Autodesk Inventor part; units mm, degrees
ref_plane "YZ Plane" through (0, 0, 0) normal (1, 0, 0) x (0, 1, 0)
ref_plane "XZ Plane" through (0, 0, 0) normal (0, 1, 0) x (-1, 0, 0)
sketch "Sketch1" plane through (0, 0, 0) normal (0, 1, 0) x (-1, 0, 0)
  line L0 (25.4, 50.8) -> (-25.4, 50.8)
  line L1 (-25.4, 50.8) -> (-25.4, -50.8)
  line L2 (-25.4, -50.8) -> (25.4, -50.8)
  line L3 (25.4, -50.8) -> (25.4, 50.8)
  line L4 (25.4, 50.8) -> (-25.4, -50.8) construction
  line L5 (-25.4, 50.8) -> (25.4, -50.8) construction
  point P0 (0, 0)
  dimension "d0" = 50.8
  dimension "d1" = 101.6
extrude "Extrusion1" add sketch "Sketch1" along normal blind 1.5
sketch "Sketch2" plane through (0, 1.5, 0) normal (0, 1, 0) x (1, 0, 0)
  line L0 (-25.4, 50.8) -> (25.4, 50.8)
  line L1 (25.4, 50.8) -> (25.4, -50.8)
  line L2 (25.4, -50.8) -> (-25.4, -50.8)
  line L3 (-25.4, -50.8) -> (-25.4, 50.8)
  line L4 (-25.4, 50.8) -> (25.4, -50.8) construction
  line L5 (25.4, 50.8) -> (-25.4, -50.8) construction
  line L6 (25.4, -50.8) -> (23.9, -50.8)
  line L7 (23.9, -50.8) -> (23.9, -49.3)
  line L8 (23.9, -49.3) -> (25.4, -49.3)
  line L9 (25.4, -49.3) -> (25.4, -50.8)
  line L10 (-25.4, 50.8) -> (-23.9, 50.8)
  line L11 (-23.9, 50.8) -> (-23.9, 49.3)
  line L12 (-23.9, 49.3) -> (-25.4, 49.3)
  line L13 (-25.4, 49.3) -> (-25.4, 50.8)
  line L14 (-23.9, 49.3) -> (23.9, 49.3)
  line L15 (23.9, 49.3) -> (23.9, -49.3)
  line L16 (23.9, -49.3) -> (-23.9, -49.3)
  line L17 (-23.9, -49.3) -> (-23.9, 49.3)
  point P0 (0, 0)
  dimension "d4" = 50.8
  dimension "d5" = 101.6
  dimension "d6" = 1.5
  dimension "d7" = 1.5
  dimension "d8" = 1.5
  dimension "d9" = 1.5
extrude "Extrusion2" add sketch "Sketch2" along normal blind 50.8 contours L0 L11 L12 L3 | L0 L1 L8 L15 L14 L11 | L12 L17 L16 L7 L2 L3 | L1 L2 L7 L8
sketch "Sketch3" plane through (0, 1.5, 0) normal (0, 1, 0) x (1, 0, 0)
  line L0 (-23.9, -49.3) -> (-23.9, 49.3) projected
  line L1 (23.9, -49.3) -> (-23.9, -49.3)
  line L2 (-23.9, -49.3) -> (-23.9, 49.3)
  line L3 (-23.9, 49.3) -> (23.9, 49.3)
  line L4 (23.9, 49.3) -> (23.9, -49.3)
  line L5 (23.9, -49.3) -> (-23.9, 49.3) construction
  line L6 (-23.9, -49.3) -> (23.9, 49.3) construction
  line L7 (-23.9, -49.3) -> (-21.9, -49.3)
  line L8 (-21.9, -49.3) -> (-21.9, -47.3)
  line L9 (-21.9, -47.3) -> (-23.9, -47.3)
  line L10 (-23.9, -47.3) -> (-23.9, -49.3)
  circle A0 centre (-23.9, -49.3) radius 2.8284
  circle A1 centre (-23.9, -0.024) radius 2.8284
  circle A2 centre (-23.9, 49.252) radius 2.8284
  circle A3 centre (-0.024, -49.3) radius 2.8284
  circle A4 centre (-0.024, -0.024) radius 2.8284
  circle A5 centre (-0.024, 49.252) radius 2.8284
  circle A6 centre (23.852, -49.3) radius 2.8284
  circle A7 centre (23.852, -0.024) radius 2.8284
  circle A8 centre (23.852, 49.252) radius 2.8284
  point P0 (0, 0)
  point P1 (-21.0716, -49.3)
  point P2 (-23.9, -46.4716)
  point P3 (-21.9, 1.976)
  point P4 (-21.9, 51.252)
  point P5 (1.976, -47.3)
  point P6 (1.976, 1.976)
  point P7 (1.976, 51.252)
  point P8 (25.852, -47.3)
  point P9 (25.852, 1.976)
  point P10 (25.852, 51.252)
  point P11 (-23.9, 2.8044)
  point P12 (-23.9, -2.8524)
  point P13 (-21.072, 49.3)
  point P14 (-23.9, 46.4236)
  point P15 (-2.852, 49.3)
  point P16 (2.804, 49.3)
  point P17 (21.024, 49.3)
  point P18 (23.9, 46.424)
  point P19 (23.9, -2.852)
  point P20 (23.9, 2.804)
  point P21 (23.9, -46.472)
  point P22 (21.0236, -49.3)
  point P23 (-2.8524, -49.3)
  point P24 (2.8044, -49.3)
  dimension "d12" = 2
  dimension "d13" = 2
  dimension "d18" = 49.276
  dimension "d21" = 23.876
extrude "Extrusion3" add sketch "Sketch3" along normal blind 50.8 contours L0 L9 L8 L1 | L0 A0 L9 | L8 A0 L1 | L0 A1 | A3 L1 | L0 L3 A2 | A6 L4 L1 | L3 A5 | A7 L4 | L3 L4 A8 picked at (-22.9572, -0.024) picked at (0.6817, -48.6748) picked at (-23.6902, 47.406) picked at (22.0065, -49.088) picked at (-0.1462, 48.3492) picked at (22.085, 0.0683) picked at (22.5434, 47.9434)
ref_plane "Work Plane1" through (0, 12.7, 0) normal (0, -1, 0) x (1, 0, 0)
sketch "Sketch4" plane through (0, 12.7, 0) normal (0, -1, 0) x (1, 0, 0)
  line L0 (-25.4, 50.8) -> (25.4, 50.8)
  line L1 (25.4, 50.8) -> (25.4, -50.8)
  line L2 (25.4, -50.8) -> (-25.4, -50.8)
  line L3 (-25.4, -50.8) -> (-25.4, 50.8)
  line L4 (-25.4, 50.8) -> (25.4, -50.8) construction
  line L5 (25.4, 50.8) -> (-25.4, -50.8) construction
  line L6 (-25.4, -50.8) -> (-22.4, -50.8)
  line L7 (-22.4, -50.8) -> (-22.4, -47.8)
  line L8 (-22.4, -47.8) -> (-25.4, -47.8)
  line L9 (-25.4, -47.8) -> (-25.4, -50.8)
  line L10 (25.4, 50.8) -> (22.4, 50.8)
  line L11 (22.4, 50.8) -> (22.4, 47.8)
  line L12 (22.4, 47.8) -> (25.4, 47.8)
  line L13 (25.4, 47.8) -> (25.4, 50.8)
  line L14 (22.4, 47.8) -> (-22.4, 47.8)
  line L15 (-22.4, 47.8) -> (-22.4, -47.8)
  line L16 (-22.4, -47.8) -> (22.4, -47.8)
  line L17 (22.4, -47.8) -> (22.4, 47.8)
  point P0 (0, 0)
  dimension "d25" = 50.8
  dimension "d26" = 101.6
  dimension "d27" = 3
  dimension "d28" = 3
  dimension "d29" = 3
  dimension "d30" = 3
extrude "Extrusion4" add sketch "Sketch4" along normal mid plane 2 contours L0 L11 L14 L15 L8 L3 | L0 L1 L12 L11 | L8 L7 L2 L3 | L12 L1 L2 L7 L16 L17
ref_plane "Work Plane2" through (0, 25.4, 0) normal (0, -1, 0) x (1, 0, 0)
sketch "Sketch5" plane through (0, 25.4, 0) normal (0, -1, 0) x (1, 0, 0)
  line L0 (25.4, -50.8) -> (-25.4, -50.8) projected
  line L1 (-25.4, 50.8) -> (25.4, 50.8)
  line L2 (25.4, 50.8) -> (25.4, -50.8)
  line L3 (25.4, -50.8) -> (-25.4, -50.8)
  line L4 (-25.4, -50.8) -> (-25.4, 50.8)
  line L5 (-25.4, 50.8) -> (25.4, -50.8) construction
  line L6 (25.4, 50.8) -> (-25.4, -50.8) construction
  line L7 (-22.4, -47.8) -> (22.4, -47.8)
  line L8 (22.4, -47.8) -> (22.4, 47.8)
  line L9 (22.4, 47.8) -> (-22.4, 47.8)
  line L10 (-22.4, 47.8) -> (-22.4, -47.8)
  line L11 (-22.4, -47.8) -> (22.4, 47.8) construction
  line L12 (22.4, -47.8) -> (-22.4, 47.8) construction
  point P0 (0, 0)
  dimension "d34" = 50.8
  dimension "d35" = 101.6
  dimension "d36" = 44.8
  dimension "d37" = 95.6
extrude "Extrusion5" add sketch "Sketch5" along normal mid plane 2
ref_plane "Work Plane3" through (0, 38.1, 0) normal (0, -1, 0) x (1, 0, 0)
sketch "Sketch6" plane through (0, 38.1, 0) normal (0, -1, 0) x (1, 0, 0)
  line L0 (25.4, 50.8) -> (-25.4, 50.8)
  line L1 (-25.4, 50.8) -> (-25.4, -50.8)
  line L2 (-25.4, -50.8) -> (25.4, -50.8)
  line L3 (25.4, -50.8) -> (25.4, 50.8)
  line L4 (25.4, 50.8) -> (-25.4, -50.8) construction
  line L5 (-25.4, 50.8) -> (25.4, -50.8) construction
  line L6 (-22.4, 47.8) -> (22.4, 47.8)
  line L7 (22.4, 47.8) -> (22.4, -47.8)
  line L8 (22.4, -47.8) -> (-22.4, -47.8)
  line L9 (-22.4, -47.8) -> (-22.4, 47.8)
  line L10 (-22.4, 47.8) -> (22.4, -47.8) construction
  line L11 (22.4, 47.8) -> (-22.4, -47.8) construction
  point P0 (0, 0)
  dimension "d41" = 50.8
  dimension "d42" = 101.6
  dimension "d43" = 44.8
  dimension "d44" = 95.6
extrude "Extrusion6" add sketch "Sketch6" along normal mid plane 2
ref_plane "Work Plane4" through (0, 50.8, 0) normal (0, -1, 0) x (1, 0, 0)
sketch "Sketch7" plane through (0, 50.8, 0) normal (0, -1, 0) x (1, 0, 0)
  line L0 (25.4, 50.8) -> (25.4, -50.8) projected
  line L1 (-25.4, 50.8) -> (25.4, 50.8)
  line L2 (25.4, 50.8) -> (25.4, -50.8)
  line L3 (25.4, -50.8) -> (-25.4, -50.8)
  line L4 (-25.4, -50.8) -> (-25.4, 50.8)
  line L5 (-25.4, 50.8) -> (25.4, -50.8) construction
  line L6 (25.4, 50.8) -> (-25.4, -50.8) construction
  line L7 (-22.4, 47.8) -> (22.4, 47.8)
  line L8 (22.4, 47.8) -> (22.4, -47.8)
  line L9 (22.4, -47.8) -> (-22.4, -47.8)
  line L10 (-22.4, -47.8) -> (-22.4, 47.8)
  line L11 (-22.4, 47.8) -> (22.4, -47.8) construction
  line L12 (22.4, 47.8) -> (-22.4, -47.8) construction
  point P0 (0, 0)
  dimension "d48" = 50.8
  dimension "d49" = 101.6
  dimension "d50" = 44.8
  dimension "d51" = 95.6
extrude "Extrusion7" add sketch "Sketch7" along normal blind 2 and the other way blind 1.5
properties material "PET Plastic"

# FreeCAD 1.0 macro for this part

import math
import FreeCAD as App
import Part
import Sketcher

V = App.Vector

doc = App.newDocument("Part")
params = doc.addObject("Spreadsheet::Sheet", "Params")
for row, (alias, value) in enumerate([
    ("sketch1_width", "50.8 mm"),
    ("sketch1_height", "101.6 mm"),
    ("pad1_length", "1.5 mm"),
    ("sketch2_width", "50.8 mm"),
    ("sketch2_height", "101.6 mm"),
    ("pad2_length", "50.8 mm"),
    ("pad3_length", "50.8 mm"),
    ("sketch4_width", "50.8 mm"),
    ("sketch4_height", "101.6 mm"),
    ("pad4_length", "2 mm"),
    ("sketch5_width", "50.8 mm"),
    ("sketch5_width2", "44.8 mm"),
    ("sketch5_height", "101.6 mm"),
    ("sketch5_height2", "95.6 mm"),
    ("pad5_length", "2 mm"),
    ("sketch6_width", "50.8 mm"),
    ("sketch6_width2", "44.8 mm"),
    ("sketch6_height", "101.6 mm"),
    ("sketch6_height2", "95.6 mm"),
    ("pad6_length", "2 mm"),
    ("sketch7_width", "50.8 mm"),
    ("sketch7_width2", "44.8 mm"),
    ("sketch7_height", "101.6 mm"),
    ("sketch7_height2", "95.6 mm"),
    ("pad7_length", "2 mm"),
    ("pad7_length2", "1.5 mm"),
], start=1):
    params.set(f"A{row}", alias)
    params.set(f"B{row}", "=" + value)
    params.setAlias(f"B{row}", alias)

body = doc.addObject("PartDesign::Body", "Body")

sketch1 = doc.addObject("Sketcher::SketchObject", "Sketch")
body.addObject(sketch1)
sketch1.AttachmentSupport = (doc.XZ_Plane, [""])
sketch1.MapMode = "FlatFace"
sketch1.addGeometry([
    Part.LineSegment(V(-25, -51, 0), V(-25, 51, 0)),
    Part.LineSegment(V(-25, 51, 0), V(25, 51, 0)),
    Part.LineSegment(V(25, 51, 0), V(25, -51, 0)),
    Part.LineSegment(V(25, -51, 0), V(-25, -51, 0)),
], False)
sketch1.addConstraint([
    Sketcher.Constraint("Coincident", 0, 2, 1, 1),
    Sketcher.Constraint("Coincident", 1, 2, 2, 1),
    Sketcher.Constraint("Coincident", 2, 2, 3, 1),
    Sketcher.Constraint("Coincident", 3, 2, 0, 1),
    Sketcher.Constraint("Vertical", 0),
    Sketcher.Constraint("Horizontal", 1),
    Sketcher.Constraint("Vertical", 2),
    Sketcher.Constraint("Horizontal", 3),
    Sketcher.Constraint("Symmetric", 0, 2, 2, 2, -1, 1),
    Sketcher.Constraint("DistanceX", 1, 1, 1, 2, 50.8),
    Sketcher.Constraint("DistanceY", 0, 1, 0, 2, 101.6),
])
sketch1.setExpression("Constraints[9]", "Params.sketch1_width")
sketch1.setExpression("Constraints[10]", "Params.sketch1_height")
pad1 = doc.addObject("PartDesign::Pad", "Pad")
body.addObject(pad1)
pad1.Profile = sketch1
pad1.setExpression("Length", "Params.pad1_length")
pad1.Reversed = True

sketch2 = doc.addObject("Sketcher::SketchObject", "Sketch001")
body.addObject(sketch2)
sketch2.AttachmentSupport = (doc.XZ_Plane, [""])
sketch2.MapMode = "FlatFace"
sketch2.AttachmentOffset = App.Placement(V(0, 0, -1.5), App.Rotation())
sketch2.addGeometry([
    Part.LineSegment(V(-25, -51, 0), V(-25, 51, 0)),
    Part.LineSegment(V(-25, 51, 0), V(25, 51, 0)),
    Part.LineSegment(V(25, 51, 0), V(25, -51, 0)),
    Part.LineSegment(V(25, -51, 0), V(-25, -51, 0)),
    Part.LineSegment(V(24, -49, 0), V(24, 49, 0)),
    Part.LineSegment(V(24, 49, 0), V(-24, 49, 0)),
    Part.LineSegment(V(-24, 49, 0), V(-24, -49, 0)),
    Part.LineSegment(V(-24, -49, 0), V(24, -49, 0)),
], False)
sketch2.addConstraint([
    Sketcher.Constraint("Coincident", 0, 2, 1, 1),
    Sketcher.Constraint("Coincident", 1, 2, 2, 1),
    Sketcher.Constraint("Coincident", 2, 2, 3, 1),
    Sketcher.Constraint("Coincident", 3, 2, 0, 1),
    Sketcher.Constraint("Coincident", 4, 2, 5, 1),
    Sketcher.Constraint("Coincident", 5, 2, 6, 1),
    Sketcher.Constraint("Coincident", 6, 2, 7, 1),
    Sketcher.Constraint("Coincident", 7, 2, 4, 1),
    Sketcher.Constraint("Vertical", 0),
    Sketcher.Constraint("Horizontal", 1),
    Sketcher.Constraint("Vertical", 2),
    Sketcher.Constraint("Horizontal", 3),
    Sketcher.Constraint("Vertical", 4),
    Sketcher.Constraint("Horizontal", 5),
    Sketcher.Constraint("Vertical", 6),
    Sketcher.Constraint("Horizontal", 7),
    Sketcher.Constraint("Symmetric", 0, 2, 2, 2, -1, 1),
    Sketcher.Constraint("Symmetric", 4, 2, 6, 2, -1, 1),
    Sketcher.Constraint("DistanceX", 1, 1, 1, 2, 50.8),
    Sketcher.Constraint("DistanceY", 0, 1, 0, 2, 101.6),
    Sketcher.Constraint("DistanceX", 4, 2, 1, 2, 1.5),
    Sketcher.Constraint("DistanceY", 4, 2, 1, 2, 1.5),
])
sketch2.setExpression("Constraints[18]", "Params.sketch2_width")
sketch2.setExpression("Constraints[19]", "Params.sketch2_height")
pad2 = doc.addObject("PartDesign::Pad", "Pad001")
body.addObject(pad2)
pad2.Profile = sketch2
pad2.setExpression("Length", "Params.pad2_length")
pad2.Reversed = True

sketch3 = doc.addObject("Sketcher::SketchObject", "Sketch002")
body.addObject(sketch3)
sketch3.AttachmentSupport = (doc.XZ_Plane, [""])
sketch3.MapMode = "FlatFace"
sketch3.AttachmentOffset = App.Placement(V(0, 0, -1.5), App.Rotation())
sketch3.addGeometry([
    Part.LineSegment(V(-23.9, 49.3, 0), V(-21.1, 49.3, 0)),
    Part.ArcOfCircle(Part.Circle(V(-23.9, 49.3, 0), V(0, 0, 1), 2.8), math.radians(-90), math.radians(0)),
    Part.LineSegment(V(-23.9, 46.5, 0), V(-23.9, 49.3, 0)),
    Part.LineSegment(V(-23.9, -2.8, 0), V(-23.9, 2.9, 0)),
    Part.ArcOfCircle(Part.Circle(V(-23.9, 0, 0), V(0, 0, 1), 2.8), math.radians(-90), math.radians(90)),
    Part.ArcOfCircle(Part.Circle(V(0, 49.3, 0), V(0, 0, 1), 2.8), math.radians(180), math.radians(360)),
    Part.LineSegment(V(-2.9, 49.3, 0), V(2.8, 49.3, 0)),
    Part.LineSegment(V(-23.9, -49.3, 0), V(-23.9, -46.4, 0)),
    Part.ArcOfCircle(Part.Circle(V(-23.9, -49.3, 0), V(0, 0, 1), 2.8), math.radians(-1), math.radians(90)),
    Part.LineSegment(V(-21.1, -49.3, 0), V(-23.9, -49.3, 0)),
    Part.ArcOfCircle(Part.Circle(V(23.9, 49.3, 0), V(0, 0, 1), 2.8), math.radians(180), math.radians(271)),
    Part.LineSegment(V(21, 49.3, 0), V(23.9, 49.3, 0)),
    Part.LineSegment(V(23.9, 49.3, 0), V(23.9, 46.5, 0)),
    Part.LineSegment(V(2.8, -49.3, 0), V(-2.9, -49.3, 0)),
    Part.ArcOfCircle(Part.Circle(V(0, -49.3, 0), V(0, 0, 1), 2.8), math.radians(-1), math.radians(181)),
    Part.ArcOfCircle(Part.Circle(V(23.9, 0, 0), V(0, 0, 1), 2.8), math.radians(89), math.radians(271)),
    Part.LineSegment(V(23.9, 2.9, 0), V(23.9, -2.8, 0)),
    Part.LineSegment(V(23.9, -49.3, 0), V(21, -49.3, 0)),
    Part.ArcOfCircle(Part.Circle(V(23.9, -49.3, 0), V(0, 0, 1), 2.8), math.radians(89), math.radians(181)),
    Part.LineSegment(V(23.9, -46.4, 0), V(23.9, -49.3, 0)),
], False)
sketch3.addConstraint([
    Sketcher.Constraint("Coincident", 0, 2, 1, 2),
    Sketcher.Constraint("Coincident", 1, 1, 2, 1),
    Sketcher.Constraint("Coincident", 2, 2, 0, 1),
    Sketcher.Constraint("Coincident", 3, 1, 4, 1),
    Sketcher.Constraint("Coincident", 4, 2, 3, 2),
    Sketcher.Constraint("Coincident", 5, 1, 6, 1),
    Sketcher.Constraint("Coincident", 6, 2, 5, 2),
    Sketcher.Constraint("Coincident", 7, 2, 8, 2),
    Sketcher.Constraint("Coincident", 8, 1, 9, 1),
    Sketcher.Constraint("Coincident", 9, 2, 7, 1),
    Sketcher.Constraint("Coincident", 10, 1, 11, 1),
    Sketcher.Constraint("Coincident", 11, 2, 12, 1),
    Sketcher.Constraint("Coincident", 12, 2, 10, 2),
    Sketcher.Constraint("Coincident", 13, 1, 14, 1),
    Sketcher.Constraint("Coincident", 14, 2, 13, 2),
    Sketcher.Constraint("Coincident", 15, 1, 16, 1),
    Sketcher.Constraint("Coincident", 16, 2, 15, 2),
    Sketcher.Constraint("Coincident", 17, 2, 18, 2),
    Sketcher.Constraint("Coincident", 18, 1, 19, 1),
    Sketcher.Constraint("Coincident", 19, 2, 17, 1),
    Sketcher.Constraint("Horizontal", 0),
    Sketcher.Constraint("Vertical", 2),
    Sketcher.Constraint("Vertical", 3),
    Sketcher.Constraint("Horizontal", 6),
    Sketcher.Constraint("Vertical", 7),
    Sketcher.Constraint("Horizontal", 9),
    Sketcher.Constraint("Horizontal", 11),
    Sketcher.Constraint("Vertical", 12),
    Sketcher.Constraint("Horizontal", 13),
    Sketcher.Constraint("Vertical", 16),
    Sketcher.Constraint("Horizontal", 17),
    Sketcher.Constraint("Vertical", 19),
    Sketcher.Constraint("Coincident", 2, 2, 1, 3),
    Sketcher.Constraint("Equal", 1, 4),
    Sketcher.Constraint("Equal", 4, 5),
    Sketcher.Constraint("Equal", 5, 8),
    Sketcher.Constraint("Equal", 8, 10),
    Sketcher.Constraint("Equal", 10, 14),
    Sketcher.Constraint("Equal", 14, 15),
    Sketcher.Constraint("Equal", 15, 18),
    Sketcher.Constraint("Symmetric", 9, 2, 11, 2, -1, 1),
    Sketcher.Constraint("Symmetric", 2, 2, 19, 2, -1, 1),
    Sketcher.Constraint("Symmetric", 2, 2, 11, 2, -2),
    Sketcher.Constraint("Horizontal", 1, 3, 5, 3),
    Sketcher.Constraint("Horizontal", 5, 3, 10, 3),
    Sketcher.Constraint("Horizontal", 8, 3, 14, 3),
    Sketcher.Constraint("Horizontal", 4, 3, 15, 3),
    Sketcher.Constraint("Horizontal", 14, 3, 18, 3),
    Sketcher.Constraint("Horizontal", 2, 2, 5, 1),
    Sketcher.Constraint("Horizontal", 9, 2, 13, 1),
    Sketcher.Constraint("Vertical", 1, 3, 4, 3),
    Sketcher.Constraint("Vertical", 4, 3, 8, 3),
    Sketcher.Constraint("Vertical", 5, 3, 14, 3),
    Sketcher.Constraint("Vertical", 10, 3, 15, 3),
    Sketcher.Constraint("Vertical", 15, 3, 18, 3),
    Sketcher.Constraint("Vertical", 2, 2, 3, 1),
    Sketcher.Constraint("Vertical", 12, 2, 15, 1),
    Sketcher.Constraint("Equal", 11, 7),
    Sketcher.Constraint("DistanceY", 4, 3, 1, 3, 49.276),
    Sketcher.Constraint("DistanceX", 1, 3, 5, 3, 23.876),
    Sketcher.Constraint("DistanceY", 8, 3, 4, 3, 49.276),
    Sketcher.Constraint("DistanceX", 5, 3, 10, 3, 23.876),
    Sketcher.Constraint("DistanceX", 1, 3, -1, 1, 23.9),
    Sketcher.Constraint("Radius", 1, 2.8284),
])
pad3 = doc.addObject("PartDesign::Pad", "Pad002")
body.addObject(pad3)
pad3.Profile = sketch3
pad3.setExpression("Length", "Params.pad3_length")
pad3.Reversed = True

sketch4 = doc.addObject("Sketcher::SketchObject", "Sketch003")
body.addObject(sketch4)
sketch4.AttachmentSupport = (doc.XZ_Plane, [""])
sketch4.MapMode = "FlatFace"
sketch4.AttachmentOffset = App.Placement(V(0, 0, -12.7), App.Rotation())
sketch4.addGeometry([
    Part.LineSegment(V(-25, 51, 0), V(-25, -51, 0)),
    Part.LineSegment(V(-25, -51, 0), V(25, -51, 0)),
    Part.LineSegment(V(25, -51, 0), V(25, 51, 0)),
    Part.LineSegment(V(25, 51, 0), V(-25, 51, 0)),
    Part.LineSegment(V(-22, 48, 0), V(22, 48, 0)),
    Part.LineSegment(V(22, 48, 0), V(22, -48, 0)),
    Part.LineSegment(V(22, -48, 0), V(-22, -48, 0)),
    Part.LineSegment(V(-22, -48, 0), V(-22, 48, 0)),
], False)
sketch4.addConstraint([
    Sketcher.Constraint("Coincident", 0, 2, 1, 1),
    Sketcher.Constraint("Coincident", 1, 2, 2, 1),
    Sketcher.Constraint("Coincident", 2, 2, 3, 1),
    Sketcher.Constraint("Coincident", 3, 2, 0, 1),
    Sketcher.Constraint("Coincident", 4, 2, 5, 1),
    Sketcher.Constraint("Coincident", 5, 2, 6, 1),
    Sketcher.Constraint("Coincident", 6, 2, 7, 1),
    Sketcher.Constraint("Coincident", 7, 2, 4, 1),
    Sketcher.Constraint("Vertical", 0),
    Sketcher.Constraint("Horizontal", 1),
    Sketcher.Constraint("Vertical", 2),
    Sketcher.Constraint("Horizontal", 3),
    Sketcher.Constraint("Horizontal", 4),
    Sketcher.Constraint("Vertical", 5),
    Sketcher.Constraint("Horizontal", 6),
    Sketcher.Constraint("Vertical", 7),
    Sketcher.Constraint("Symmetric", 0, 2, 2, 2, -1, 1),
    Sketcher.Constraint("Symmetric", 4, 2, 6, 2, -1, 1),
    Sketcher.Constraint("DistanceX", 1, 1, 1, 2, 50.8),
    Sketcher.Constraint("DistanceY", 0, 2, 0, 1, 101.6),
    Sketcher.Constraint("DistanceX", 4, 2, 2, 2, 3.0),
    Sketcher.Constraint("DistanceY", 4, 2, 2, 2, 3.0),
])
sketch4.setExpression("Constraints[18]", "Params.sketch4_width")
sketch4.setExpression("Constraints[19]", "Params.sketch4_height")
pad4 = doc.addObject("PartDesign::Pad", "Pad003")
body.addObject(pad4)
pad4.Profile = sketch4
pad4.setExpression("Length", "Params.pad4_length")
pad4.Midplane = True

sketch5 = doc.addObject("Sketcher::SketchObject", "Sketch004")
body.addObject(sketch5)
sketch5.AttachmentSupport = (doc.XZ_Plane, [""])
sketch5.MapMode = "FlatFace"
sketch5.AttachmentOffset = App.Placement(V(0, 0, -25.4), App.Rotation())
sketch5.addGeometry([
    Part.LineSegment(V(-25, -51, 0), V(25, -51, 0)),
    Part.LineSegment(V(25, -51, 0), V(25, 51, 0)),
    Part.LineSegment(V(25, 51, 0), V(-25, 51, 0)),
    Part.LineSegment(V(-25, 51, 0), V(-25, -51, 0)),
    Part.LineSegment(V(22, -48, 0), V(-22, -48, 0)),
    Part.LineSegment(V(-22, -48, 0), V(-22, 48, 0)),
    Part.LineSegment(V(-22, 48, 0), V(22, 48, 0)),
    Part.LineSegment(V(22, 48, 0), V(22, -48, 0)),
], False)
sketch5.addConstraint([
    Sketcher.Constraint("Coincident", 0, 2, 1, 1),
    Sketcher.Constraint("Coincident", 1, 2, 2, 1),
    Sketcher.Constraint("Coincident", 2, 2, 3, 1),
    Sketcher.Constraint("Coincident", 3, 2, 0, 1),
    Sketcher.Constraint("Coincident", 4, 2, 5, 1),
    Sketcher.Constraint("Coincident", 5, 2, 6, 1),
    Sketcher.Constraint("Coincident", 6, 2, 7, 1),
    Sketcher.Constraint("Coincident", 7, 2, 4, 1),
    Sketcher.Constraint("Horizontal", 0),
    Sketcher.Constraint("Vertical", 1),
    Sketcher.Constraint("Horizontal", 2),
    Sketcher.Constraint("Vertical", 3),
    Sketcher.Constraint("Horizontal", 4),
    Sketcher.Constraint("Vertical", 5),
    Sketcher.Constraint("Horizontal", 6),
    Sketcher.Constraint("Vertical", 7),
    Sketcher.Constraint("Symmetric", 0, 2, 2, 2, -1, 1),
    Sketcher.Constraint("Symmetric", 4, 2, 6, 2, -1, 1),
    Sketcher.Constraint("DistanceX", 0, 1, 0, 2, 50.8),
    Sketcher.Constraint("DistanceX", 4, 2, 4, 1, 44.8),
    Sketcher.Constraint("DistanceY", 1, 1, 1, 2, 101.6),
    Sketcher.Constraint("DistanceY", 5, 1, 5, 2, 95.6),
])
sketch5.setExpression("Constraints[18]", "Params.sketch5_width")
sketch5.setExpression("Constraints[19]", "Params.sketch5_width2")
sketch5.setExpression("Constraints[20]", "Params.sketch5_height")
sketch5.setExpression("Constraints[21]", "Params.sketch5_height2")
pad5 = doc.addObject("PartDesign::Pad", "Pad004")
body.addObject(pad5)
pad5.Profile = sketch5
pad5.setExpression("Length", "Params.pad5_length")
pad5.Midplane = True

sketch6 = doc.addObject("Sketcher::SketchObject", "Sketch005")
body.addObject(sketch6)
sketch6.AttachmentSupport = (doc.XZ_Plane, [""])
sketch6.MapMode = "FlatFace"
sketch6.AttachmentOffset = App.Placement(V(0, 0, -38.1), App.Rotation())
sketch6.addGeometry([
    Part.LineSegment(V(25, -51, 0), V(25, 51, 0)),
    Part.LineSegment(V(25, 51, 0), V(-25, 51, 0)),
    Part.LineSegment(V(-25, 51, 0), V(-25, -51, 0)),
    Part.LineSegment(V(-25, -51, 0), V(25, -51, 0)),
    Part.LineSegment(V(-22, -48, 0), V(-22, 48, 0)),
    Part.LineSegment(V(-22, 48, 0), V(22, 48, 0)),
    Part.LineSegment(V(22, 48, 0), V(22, -48, 0)),
    Part.LineSegment(V(22, -48, 0), V(-22, -48, 0)),
], False)
sketch6.addConstraint([
    Sketcher.Constraint("Coincident", 0, 2, 1, 1),
    Sketcher.Constraint("Coincident", 1, 2, 2, 1),
    Sketcher.Constraint("Coincident", 2, 2, 3, 1),
    Sketcher.Constraint("Coincident", 3, 2, 0, 1),
    Sketcher.Constraint("Coincident", 4, 2, 5, 1),
    Sketcher.Constraint("Coincident", 5, 2, 6, 1),
    Sketcher.Constraint("Coincident", 6, 2, 7, 1),
    Sketcher.Constraint("Coincident", 7, 2, 4, 1),
    Sketcher.Constraint("Vertical", 0),
    Sketcher.Constraint("Horizontal", 1),
    Sketcher.Constraint("Vertical", 2),
    Sketcher.Constraint("Horizontal", 3),
    Sketcher.Constraint("Vertical", 4),
    Sketcher.Constraint("Horizontal", 5),
    Sketcher.Constraint("Vertical", 6),
    Sketcher.Constraint("Horizontal", 7),
    Sketcher.Constraint("Symmetric", 0, 2, 2, 2, -1, 1),
    Sketcher.Constraint("Symmetric", 4, 2, 6, 2, -1, 1),
    Sketcher.Constraint("DistanceX", 1, 2, 1, 1, 50.8),
    Sketcher.Constraint("DistanceX", 5, 1, 5, 2, 44.8),
    Sketcher.Constraint("DistanceY", 0, 1, 0, 2, 101.6),
    Sketcher.Constraint("DistanceY", 4, 1, 4, 2, 95.6),
])
sketch6.setExpression("Constraints[18]", "Params.sketch6_width")
sketch6.setExpression("Constraints[19]", "Params.sketch6_width2")
sketch6.setExpression("Constraints[20]", "Params.sketch6_height")
sketch6.setExpression("Constraints[21]", "Params.sketch6_height2")
pad6 = doc.addObject("PartDesign::Pad", "Pad005")
body.addObject(pad6)
pad6.Profile = sketch6
pad6.setExpression("Length", "Params.pad6_length")
pad6.Midplane = True

sketch7 = doc.addObject("Sketcher::SketchObject", "Sketch006")
body.addObject(sketch7)
sketch7.AttachmentSupport = (doc.XZ_Plane, [""])
sketch7.MapMode = "FlatFace"
sketch7.AttachmentOffset = App.Placement(V(0, 0, -50.8), App.Rotation())
sketch7.addGeometry([
    Part.LineSegment(V(25, -51, 0), V(25, 51, 0)),
    Part.LineSegment(V(25, 51, 0), V(-25, 51, 0)),
    Part.LineSegment(V(-25, 51, 0), V(-25, -51, 0)),
    Part.LineSegment(V(-25, -51, 0), V(25, -51, 0)),
    Part.LineSegment(V(-22, -48, 0), V(-22, 48, 0)),
    Part.LineSegment(V(-22, 48, 0), V(22, 48, 0)),
    Part.LineSegment(V(22, 48, 0), V(22, -48, 0)),
    Part.LineSegment(V(22, -48, 0), V(-22, -48, 0)),
], False)
sketch7.addConstraint([
    Sketcher.Constraint("Coincident", 0, 2, 1, 1),
    Sketcher.Constraint("Coincident", 1, 2, 2, 1),
    Sketcher.Constraint("Coincident", 2, 2, 3, 1),
    Sketcher.Constraint("Coincident", 3, 2, 0, 1),
    Sketcher.Constraint("Coincident", 4, 2, 5, 1),
    Sketcher.Constraint("Coincident", 5, 2, 6, 1),
    Sketcher.Constraint("Coincident", 6, 2, 7, 1),
    Sketcher.Constraint("Coincident", 7, 2, 4, 1),
    Sketcher.Constraint("Vertical", 0),
    Sketcher.Constraint("Horizontal", 1),
    Sketcher.Constraint("Vertical", 2),
    Sketcher.Constraint("Horizontal", 3),
    Sketcher.Constraint("Vertical", 4),
    Sketcher.Constraint("Horizontal", 5),
    Sketcher.Constraint("Vertical", 6),
    Sketcher.Constraint("Horizontal", 7),
    Sketcher.Constraint("Symmetric", 0, 2, 2, 2, -1, 1),
    Sketcher.Constraint("Symmetric", 4, 2, 6, 2, -1, 1),
    Sketcher.Constraint("DistanceX", 1, 2, 1, 1, 50.8),
    Sketcher.Constraint("DistanceX", 5, 1, 5, 2, 44.8),
    Sketcher.Constraint("DistanceY", 0, 1, 0, 2, 101.6),
    Sketcher.Constraint("DistanceY", 4, 1, 4, 2, 95.6),
])
sketch7.setExpression("Constraints[18]", "Params.sketch7_width")
sketch7.setExpression("Constraints[19]", "Params.sketch7_width2")
sketch7.setExpression("Constraints[20]", "Params.sketch7_height")
sketch7.setExpression("Constraints[21]", "Params.sketch7_height2")
pad7 = doc.addObject("PartDesign::Pad", "Pad006")
body.addObject(pad7)
pad7.Profile = sketch7
pad7.Type = "TwoLengths"
pad7.setExpression("Length", "Params.pad7_length")
pad7.setExpression("Length2", "Params.pad7_length2")

doc.recompute()
